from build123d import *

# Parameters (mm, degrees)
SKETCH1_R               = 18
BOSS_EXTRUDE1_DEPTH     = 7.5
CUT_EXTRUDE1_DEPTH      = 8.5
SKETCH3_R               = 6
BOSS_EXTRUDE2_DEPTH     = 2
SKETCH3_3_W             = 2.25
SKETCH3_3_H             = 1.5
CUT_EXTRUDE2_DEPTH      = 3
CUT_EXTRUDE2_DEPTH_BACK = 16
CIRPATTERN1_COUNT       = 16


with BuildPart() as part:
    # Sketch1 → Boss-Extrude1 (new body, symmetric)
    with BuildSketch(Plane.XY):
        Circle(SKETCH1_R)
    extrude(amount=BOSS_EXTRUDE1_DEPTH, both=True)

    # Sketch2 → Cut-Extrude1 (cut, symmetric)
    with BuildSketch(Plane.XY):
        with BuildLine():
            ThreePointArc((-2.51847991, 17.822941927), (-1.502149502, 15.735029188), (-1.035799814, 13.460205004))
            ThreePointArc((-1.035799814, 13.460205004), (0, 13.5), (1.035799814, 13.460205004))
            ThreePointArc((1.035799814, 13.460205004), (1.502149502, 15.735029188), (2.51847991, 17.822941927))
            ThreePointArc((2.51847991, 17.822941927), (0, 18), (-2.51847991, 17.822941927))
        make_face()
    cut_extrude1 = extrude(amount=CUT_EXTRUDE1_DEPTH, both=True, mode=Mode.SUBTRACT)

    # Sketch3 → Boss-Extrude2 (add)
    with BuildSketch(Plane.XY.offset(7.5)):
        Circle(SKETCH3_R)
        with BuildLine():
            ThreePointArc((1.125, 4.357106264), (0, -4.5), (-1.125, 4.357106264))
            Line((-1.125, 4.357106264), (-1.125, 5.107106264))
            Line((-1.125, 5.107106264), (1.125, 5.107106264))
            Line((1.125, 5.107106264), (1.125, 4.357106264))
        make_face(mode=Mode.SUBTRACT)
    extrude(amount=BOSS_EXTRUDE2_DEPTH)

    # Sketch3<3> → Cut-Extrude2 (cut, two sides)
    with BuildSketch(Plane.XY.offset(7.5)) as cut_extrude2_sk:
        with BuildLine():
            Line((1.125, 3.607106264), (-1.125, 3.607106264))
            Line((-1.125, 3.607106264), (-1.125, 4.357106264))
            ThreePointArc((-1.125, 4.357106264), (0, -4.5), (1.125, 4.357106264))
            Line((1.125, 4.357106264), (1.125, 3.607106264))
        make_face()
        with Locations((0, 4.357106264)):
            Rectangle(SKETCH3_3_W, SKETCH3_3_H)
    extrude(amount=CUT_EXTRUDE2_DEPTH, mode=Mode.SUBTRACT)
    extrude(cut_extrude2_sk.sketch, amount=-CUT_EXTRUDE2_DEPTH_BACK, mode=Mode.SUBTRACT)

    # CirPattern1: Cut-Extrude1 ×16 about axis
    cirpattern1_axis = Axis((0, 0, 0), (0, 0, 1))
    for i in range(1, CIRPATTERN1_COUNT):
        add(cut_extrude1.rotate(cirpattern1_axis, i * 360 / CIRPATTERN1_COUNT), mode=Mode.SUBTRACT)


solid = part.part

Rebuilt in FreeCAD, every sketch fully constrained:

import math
import FreeCAD as App
import Part
import Sketcher

V = App.Vector

doc = App.newDocument("Part")
params = doc.addObject("Spreadsheet::Sheet", "Params")
for row, (alias, value) in enumerate([
    ("sketch1_diameter", "36 mm"),
    ("pad1_length", "15 mm"),
    ("sketch2_radius", "18 mm"),
    ("sketch2_radius2", "13.5 mm"),
    ("pocket1_length", "17 mm"),
    ("sketch3_diameter", "12 mm"),
    ("sketch3_radius", "4.5 mm"),
    ("sketch3_width", "2.25 mm"),
    ("sketch3_height", "0.75 mm"),
    ("pad2_length", "2 mm"),
    ("sketch4_radius", "4.5 mm"),
    ("sketch4_width", "2.25 mm"),
    ("sketch4_height", "0.75 mm"),
], start=1):
    params.set(f"A{row}", alias)
    params.set(f"B{row}", "=" + value)
    params.setAlias(f"B{row}", alias)

body = doc.addObject("PartDesign::Body", "Body")

# Sketch on XY plane
sketch1 = doc.addObject("Sketcher::SketchObject", "Sketch")
body.addObject(sketch1)
sketch1.AttachmentSupport = (doc.XY_Plane, [""])
sketch1.MapMode = "FlatFace"
sketch1.addGeometry(Part.Circle(V(0, 0, 0), V(0, 0, 1), 18), False)
sketch1.addConstraint([
    Sketcher.Constraint("Coincident", 0, 3, -1, 1),
    Sketcher.Constraint("Diameter", 0, 36.0),
])
sketch1.setExpression("Constraints[1]", "Params.sketch1_diameter")
pad1 = doc.addObject("PartDesign::Pad", "Pad")
body.addObject(pad1)
pad1.Profile = sketch1
pad1.setExpression("Length", "Params.pad1_length")
pad1.Midplane = True

# Sketch on XY plane
sketch2 = doc.addObject("Sketcher::SketchObject", "Sketch001")
body.addObject(sketch2)
sketch2.AttachmentSupport = (doc.XY_Plane, [""])
sketch2.MapMode = "FlatFace"
sketch2.addGeometry([
    Part.ArcOfCircle(Part.Circle(V(-10.3, 12.7, 0), V(0, 0, 1), 9.3), math.radians(4), math.radians(33)),
    Part.ArcOfCircle(Part.Circle(V(0, 0, 0), V(0, 0, 1), 13.5), math.radians(85.6), math.radians(94.4)),
    Part.ArcOfCircle(Part.Circle(V(10.3, 12.7, 0), V(0, 0, 1), 9.3), math.radians(147), math.radians(176)),
    Part.ArcOfCircle(Part.Circle(V(0, 0, 0), V(0, 0, 1), 18), math.radians(81.96), math.radians(98.04)),
], False)
sketch2.addConstraint([
    Sketcher.Constraint("Coincident", 0, 1, 1, 2),
    Sketcher.Constraint("Coincident", 1, 1, 2, 2),
    Sketcher.Constraint("Coincident", 2, 1, 3, 1),
    Sketcher.Constraint("Coincident", 3, 2, 0, 2),
    Sketcher.Constraint("Coincident", 1, 3, -1, 1),
    Sketcher.Constraint("Coincident", 3, 3, -1, 1),
    Sketcher.Constraint("Equal", 0, 2),
    Sketcher.Constraint("Symmetric", 0, 3, 2, 3, -2),
    Sketcher.Constraint("Radius", 3, 18.0),
    Sketcher.Constraint("Radius", 1, 13.5),
    Sketcher.Constraint("Radius", 0, 9.283091),
    Sketcher.Constraint("DistanceX", 0, 1, -1, 1, 1.0358),
    Sketcher.Constraint("DistanceY", -1, 1, 0, 3, 12.747951),
])
sketch2.setExpression("Constraints[8]", "Params.sketch2_radius")
sketch2.setExpression("Constraints[9]", "Params.sketch2_radius2")
pocket1 = doc.addObject("PartDesign::Pocket", "Pocket")
body.addObject(pocket1)
pocket1.Profile = sketch2
pocket1.setExpression("Length", "Params.pocket1_length")
pocket1.Midplane = True

# Sketch on XY plane
sketch3 = doc.addObject("Sketcher::SketchObject", "Sketch002")
body.addObject(sketch3)
sketch3.AttachmentSupport = (doc.XY_Plane, [""])
sketch3.MapMode = "FlatFace"
sketch3.AttachmentOffset = App.Placement(V(0, 0, 7.5), App.Rotation())
sketch3.addGeometry([
    Part.Circle(V(0, 0, 0), V(0, 0, 1), 6),  # 0
    Part.LineSegment(V(1.1, 5.1, 0), V(1.1, 4.4, 0)),  # 1
    Part.ArcOfCircle(Part.Circle(V(0, 0, 0), V(0, 0, 1), 4.5), math.radians(104), math.radians(436)),  # 2
    Part.LineSegment(V(-1.1, 4.4, 0), V(-1.1, 5.1, 0)),  # 3
    Part.LineSegment(V(-1.1, 5.1, 0), V(1.1, 5.1, 0)),  # 4
], False)
sketch3.addConstraint([
    Sketcher.Constraint("Coincident", 1, 2, 2, 2),
    Sketcher.Constraint("Coincident", 2, 1, 3, 1),
    Sketcher.Constraint("Coincident", 3, 2, 4, 1),
    Sketcher.Constraint("Coincident", 4, 2, 1, 1),
    Sketcher.Constraint("Vertical", 1),
    Sketcher.Constraint("Vertical", 3),
    Sketcher.Constraint("Horizontal", 4),
    Sketcher.Constraint("Coincident", 0, 3, -1, 1),
    Sketcher.Constraint("Coincident", 2, 3, -1, 1),
    Sketcher.Constraint("Horizontal", 1, 2, 2, 1),
    Sketcher.Constraint("Diameter", 0, 12.0),
    Sketcher.Constraint("Radius", 2, 4.5),
    Sketcher.Constraint("DistanceX", 4, 1, 4, 2, 2.25),
    Sketcher.Constraint("DistanceY", 1, 2, 1, 1, 0.75),
])
sketch3.setExpression("Constraints[10]", "Params.sketch3_diameter")
sketch3.setExpression("Constraints[11]", "Params.sketch3_radius")
sketch3.setExpression("Constraints[12]", "Params.sketch3_width")
sketch3.setExpression("Constraints[13]", "Params.sketch3_height")
pad2 = doc.addObject("PartDesign::Pad", "Pad001")
body.addObject(pad2)
pad2.Profile = sketch3
pad2.setExpression("Length", "Params.pad2_length")

# Sketch on XY plane
sketch4 = doc.addObject("Sketcher::SketchObject", "Sketch003")
body.addObject(sketch4)
sketch4.AttachmentSupport = (doc.XY_Plane, [""])
sketch4.MapMode = "FlatFace"
sketch4.AttachmentOffset = App.Placement(V(0, 0, 7.5), App.Rotation())
sketch4.addGeometry([
    Part.ArcOfCircle(Part.Circle(V(0, 0, 0), V(0, 0, 1), 4.5), math.radians(104), math.radians(436)),
    Part.LineSegment(V(1.1, 4.4, 0), V(1.1, 5.1, 0)),
    Part.LineSegment(V(1.1, 5.1, 0), V(-1.1, 5.1, 0)),
    Part.LineSegment(V(-1.1, 5.1, 0), V(-1.1, 4.4, 0)),
], False)
sketch4.addConstraint([
    Sketcher.Constraint("Coincident", 0, 2, 1, 1),
    Sketcher.Constraint("Coincident", 1, 2, 2, 1),
    Sketcher.Constraint("Coincident", 2, 2, 3, 1),
    Sketcher.Constraint("Coincident", 3, 2, 0, 1),
    Sketcher.Constraint("Vertical", 1),
    Sketcher.Constraint("Horizontal", 2),
    Sketcher.Constraint("Vertical", 3),
    Sketcher.Constraint("Coincident", 0, 3, -1, 1),
    Sketcher.Constraint("Horizontal", 0, 2, 3, 2),
    Sketcher.Constraint("Radius", 0, 4.5),
    Sketcher.Constraint("DistanceX", 2, 2, 2, 1, 2.25),
    Sketcher.Constraint("DistanceY", 1, 1, 1, 2, 0.75),
])
sketch4.setExpression("Constraints[9]", "Params.sketch4_radius")
sketch4.setExpression("Constraints[10]", "Params.sketch4_width")
sketch4.setExpression("Constraints[11]", "Params.sketch4_height")
pocket2 = doc.addObject("PartDesign::Pocket", "Pocket001")
body.addObject(pocket2)
pocket2.Profile = sketch4
pocket2.Type = "ThroughAll"
pocket2.Midplane = True
doc.recompute()

polarpattern = doc.addObject("PartDesign::PolarPattern", "PolarPattern")
body.addObject(polarpattern)
polarpattern.Originals = [pocket1]
polarpattern.Axis = (doc.Z_Axis, [""])
polarpattern.Angle = 360
polarpattern.Occurrences = 16
body.Tip = polarpattern

doc.recompute()
